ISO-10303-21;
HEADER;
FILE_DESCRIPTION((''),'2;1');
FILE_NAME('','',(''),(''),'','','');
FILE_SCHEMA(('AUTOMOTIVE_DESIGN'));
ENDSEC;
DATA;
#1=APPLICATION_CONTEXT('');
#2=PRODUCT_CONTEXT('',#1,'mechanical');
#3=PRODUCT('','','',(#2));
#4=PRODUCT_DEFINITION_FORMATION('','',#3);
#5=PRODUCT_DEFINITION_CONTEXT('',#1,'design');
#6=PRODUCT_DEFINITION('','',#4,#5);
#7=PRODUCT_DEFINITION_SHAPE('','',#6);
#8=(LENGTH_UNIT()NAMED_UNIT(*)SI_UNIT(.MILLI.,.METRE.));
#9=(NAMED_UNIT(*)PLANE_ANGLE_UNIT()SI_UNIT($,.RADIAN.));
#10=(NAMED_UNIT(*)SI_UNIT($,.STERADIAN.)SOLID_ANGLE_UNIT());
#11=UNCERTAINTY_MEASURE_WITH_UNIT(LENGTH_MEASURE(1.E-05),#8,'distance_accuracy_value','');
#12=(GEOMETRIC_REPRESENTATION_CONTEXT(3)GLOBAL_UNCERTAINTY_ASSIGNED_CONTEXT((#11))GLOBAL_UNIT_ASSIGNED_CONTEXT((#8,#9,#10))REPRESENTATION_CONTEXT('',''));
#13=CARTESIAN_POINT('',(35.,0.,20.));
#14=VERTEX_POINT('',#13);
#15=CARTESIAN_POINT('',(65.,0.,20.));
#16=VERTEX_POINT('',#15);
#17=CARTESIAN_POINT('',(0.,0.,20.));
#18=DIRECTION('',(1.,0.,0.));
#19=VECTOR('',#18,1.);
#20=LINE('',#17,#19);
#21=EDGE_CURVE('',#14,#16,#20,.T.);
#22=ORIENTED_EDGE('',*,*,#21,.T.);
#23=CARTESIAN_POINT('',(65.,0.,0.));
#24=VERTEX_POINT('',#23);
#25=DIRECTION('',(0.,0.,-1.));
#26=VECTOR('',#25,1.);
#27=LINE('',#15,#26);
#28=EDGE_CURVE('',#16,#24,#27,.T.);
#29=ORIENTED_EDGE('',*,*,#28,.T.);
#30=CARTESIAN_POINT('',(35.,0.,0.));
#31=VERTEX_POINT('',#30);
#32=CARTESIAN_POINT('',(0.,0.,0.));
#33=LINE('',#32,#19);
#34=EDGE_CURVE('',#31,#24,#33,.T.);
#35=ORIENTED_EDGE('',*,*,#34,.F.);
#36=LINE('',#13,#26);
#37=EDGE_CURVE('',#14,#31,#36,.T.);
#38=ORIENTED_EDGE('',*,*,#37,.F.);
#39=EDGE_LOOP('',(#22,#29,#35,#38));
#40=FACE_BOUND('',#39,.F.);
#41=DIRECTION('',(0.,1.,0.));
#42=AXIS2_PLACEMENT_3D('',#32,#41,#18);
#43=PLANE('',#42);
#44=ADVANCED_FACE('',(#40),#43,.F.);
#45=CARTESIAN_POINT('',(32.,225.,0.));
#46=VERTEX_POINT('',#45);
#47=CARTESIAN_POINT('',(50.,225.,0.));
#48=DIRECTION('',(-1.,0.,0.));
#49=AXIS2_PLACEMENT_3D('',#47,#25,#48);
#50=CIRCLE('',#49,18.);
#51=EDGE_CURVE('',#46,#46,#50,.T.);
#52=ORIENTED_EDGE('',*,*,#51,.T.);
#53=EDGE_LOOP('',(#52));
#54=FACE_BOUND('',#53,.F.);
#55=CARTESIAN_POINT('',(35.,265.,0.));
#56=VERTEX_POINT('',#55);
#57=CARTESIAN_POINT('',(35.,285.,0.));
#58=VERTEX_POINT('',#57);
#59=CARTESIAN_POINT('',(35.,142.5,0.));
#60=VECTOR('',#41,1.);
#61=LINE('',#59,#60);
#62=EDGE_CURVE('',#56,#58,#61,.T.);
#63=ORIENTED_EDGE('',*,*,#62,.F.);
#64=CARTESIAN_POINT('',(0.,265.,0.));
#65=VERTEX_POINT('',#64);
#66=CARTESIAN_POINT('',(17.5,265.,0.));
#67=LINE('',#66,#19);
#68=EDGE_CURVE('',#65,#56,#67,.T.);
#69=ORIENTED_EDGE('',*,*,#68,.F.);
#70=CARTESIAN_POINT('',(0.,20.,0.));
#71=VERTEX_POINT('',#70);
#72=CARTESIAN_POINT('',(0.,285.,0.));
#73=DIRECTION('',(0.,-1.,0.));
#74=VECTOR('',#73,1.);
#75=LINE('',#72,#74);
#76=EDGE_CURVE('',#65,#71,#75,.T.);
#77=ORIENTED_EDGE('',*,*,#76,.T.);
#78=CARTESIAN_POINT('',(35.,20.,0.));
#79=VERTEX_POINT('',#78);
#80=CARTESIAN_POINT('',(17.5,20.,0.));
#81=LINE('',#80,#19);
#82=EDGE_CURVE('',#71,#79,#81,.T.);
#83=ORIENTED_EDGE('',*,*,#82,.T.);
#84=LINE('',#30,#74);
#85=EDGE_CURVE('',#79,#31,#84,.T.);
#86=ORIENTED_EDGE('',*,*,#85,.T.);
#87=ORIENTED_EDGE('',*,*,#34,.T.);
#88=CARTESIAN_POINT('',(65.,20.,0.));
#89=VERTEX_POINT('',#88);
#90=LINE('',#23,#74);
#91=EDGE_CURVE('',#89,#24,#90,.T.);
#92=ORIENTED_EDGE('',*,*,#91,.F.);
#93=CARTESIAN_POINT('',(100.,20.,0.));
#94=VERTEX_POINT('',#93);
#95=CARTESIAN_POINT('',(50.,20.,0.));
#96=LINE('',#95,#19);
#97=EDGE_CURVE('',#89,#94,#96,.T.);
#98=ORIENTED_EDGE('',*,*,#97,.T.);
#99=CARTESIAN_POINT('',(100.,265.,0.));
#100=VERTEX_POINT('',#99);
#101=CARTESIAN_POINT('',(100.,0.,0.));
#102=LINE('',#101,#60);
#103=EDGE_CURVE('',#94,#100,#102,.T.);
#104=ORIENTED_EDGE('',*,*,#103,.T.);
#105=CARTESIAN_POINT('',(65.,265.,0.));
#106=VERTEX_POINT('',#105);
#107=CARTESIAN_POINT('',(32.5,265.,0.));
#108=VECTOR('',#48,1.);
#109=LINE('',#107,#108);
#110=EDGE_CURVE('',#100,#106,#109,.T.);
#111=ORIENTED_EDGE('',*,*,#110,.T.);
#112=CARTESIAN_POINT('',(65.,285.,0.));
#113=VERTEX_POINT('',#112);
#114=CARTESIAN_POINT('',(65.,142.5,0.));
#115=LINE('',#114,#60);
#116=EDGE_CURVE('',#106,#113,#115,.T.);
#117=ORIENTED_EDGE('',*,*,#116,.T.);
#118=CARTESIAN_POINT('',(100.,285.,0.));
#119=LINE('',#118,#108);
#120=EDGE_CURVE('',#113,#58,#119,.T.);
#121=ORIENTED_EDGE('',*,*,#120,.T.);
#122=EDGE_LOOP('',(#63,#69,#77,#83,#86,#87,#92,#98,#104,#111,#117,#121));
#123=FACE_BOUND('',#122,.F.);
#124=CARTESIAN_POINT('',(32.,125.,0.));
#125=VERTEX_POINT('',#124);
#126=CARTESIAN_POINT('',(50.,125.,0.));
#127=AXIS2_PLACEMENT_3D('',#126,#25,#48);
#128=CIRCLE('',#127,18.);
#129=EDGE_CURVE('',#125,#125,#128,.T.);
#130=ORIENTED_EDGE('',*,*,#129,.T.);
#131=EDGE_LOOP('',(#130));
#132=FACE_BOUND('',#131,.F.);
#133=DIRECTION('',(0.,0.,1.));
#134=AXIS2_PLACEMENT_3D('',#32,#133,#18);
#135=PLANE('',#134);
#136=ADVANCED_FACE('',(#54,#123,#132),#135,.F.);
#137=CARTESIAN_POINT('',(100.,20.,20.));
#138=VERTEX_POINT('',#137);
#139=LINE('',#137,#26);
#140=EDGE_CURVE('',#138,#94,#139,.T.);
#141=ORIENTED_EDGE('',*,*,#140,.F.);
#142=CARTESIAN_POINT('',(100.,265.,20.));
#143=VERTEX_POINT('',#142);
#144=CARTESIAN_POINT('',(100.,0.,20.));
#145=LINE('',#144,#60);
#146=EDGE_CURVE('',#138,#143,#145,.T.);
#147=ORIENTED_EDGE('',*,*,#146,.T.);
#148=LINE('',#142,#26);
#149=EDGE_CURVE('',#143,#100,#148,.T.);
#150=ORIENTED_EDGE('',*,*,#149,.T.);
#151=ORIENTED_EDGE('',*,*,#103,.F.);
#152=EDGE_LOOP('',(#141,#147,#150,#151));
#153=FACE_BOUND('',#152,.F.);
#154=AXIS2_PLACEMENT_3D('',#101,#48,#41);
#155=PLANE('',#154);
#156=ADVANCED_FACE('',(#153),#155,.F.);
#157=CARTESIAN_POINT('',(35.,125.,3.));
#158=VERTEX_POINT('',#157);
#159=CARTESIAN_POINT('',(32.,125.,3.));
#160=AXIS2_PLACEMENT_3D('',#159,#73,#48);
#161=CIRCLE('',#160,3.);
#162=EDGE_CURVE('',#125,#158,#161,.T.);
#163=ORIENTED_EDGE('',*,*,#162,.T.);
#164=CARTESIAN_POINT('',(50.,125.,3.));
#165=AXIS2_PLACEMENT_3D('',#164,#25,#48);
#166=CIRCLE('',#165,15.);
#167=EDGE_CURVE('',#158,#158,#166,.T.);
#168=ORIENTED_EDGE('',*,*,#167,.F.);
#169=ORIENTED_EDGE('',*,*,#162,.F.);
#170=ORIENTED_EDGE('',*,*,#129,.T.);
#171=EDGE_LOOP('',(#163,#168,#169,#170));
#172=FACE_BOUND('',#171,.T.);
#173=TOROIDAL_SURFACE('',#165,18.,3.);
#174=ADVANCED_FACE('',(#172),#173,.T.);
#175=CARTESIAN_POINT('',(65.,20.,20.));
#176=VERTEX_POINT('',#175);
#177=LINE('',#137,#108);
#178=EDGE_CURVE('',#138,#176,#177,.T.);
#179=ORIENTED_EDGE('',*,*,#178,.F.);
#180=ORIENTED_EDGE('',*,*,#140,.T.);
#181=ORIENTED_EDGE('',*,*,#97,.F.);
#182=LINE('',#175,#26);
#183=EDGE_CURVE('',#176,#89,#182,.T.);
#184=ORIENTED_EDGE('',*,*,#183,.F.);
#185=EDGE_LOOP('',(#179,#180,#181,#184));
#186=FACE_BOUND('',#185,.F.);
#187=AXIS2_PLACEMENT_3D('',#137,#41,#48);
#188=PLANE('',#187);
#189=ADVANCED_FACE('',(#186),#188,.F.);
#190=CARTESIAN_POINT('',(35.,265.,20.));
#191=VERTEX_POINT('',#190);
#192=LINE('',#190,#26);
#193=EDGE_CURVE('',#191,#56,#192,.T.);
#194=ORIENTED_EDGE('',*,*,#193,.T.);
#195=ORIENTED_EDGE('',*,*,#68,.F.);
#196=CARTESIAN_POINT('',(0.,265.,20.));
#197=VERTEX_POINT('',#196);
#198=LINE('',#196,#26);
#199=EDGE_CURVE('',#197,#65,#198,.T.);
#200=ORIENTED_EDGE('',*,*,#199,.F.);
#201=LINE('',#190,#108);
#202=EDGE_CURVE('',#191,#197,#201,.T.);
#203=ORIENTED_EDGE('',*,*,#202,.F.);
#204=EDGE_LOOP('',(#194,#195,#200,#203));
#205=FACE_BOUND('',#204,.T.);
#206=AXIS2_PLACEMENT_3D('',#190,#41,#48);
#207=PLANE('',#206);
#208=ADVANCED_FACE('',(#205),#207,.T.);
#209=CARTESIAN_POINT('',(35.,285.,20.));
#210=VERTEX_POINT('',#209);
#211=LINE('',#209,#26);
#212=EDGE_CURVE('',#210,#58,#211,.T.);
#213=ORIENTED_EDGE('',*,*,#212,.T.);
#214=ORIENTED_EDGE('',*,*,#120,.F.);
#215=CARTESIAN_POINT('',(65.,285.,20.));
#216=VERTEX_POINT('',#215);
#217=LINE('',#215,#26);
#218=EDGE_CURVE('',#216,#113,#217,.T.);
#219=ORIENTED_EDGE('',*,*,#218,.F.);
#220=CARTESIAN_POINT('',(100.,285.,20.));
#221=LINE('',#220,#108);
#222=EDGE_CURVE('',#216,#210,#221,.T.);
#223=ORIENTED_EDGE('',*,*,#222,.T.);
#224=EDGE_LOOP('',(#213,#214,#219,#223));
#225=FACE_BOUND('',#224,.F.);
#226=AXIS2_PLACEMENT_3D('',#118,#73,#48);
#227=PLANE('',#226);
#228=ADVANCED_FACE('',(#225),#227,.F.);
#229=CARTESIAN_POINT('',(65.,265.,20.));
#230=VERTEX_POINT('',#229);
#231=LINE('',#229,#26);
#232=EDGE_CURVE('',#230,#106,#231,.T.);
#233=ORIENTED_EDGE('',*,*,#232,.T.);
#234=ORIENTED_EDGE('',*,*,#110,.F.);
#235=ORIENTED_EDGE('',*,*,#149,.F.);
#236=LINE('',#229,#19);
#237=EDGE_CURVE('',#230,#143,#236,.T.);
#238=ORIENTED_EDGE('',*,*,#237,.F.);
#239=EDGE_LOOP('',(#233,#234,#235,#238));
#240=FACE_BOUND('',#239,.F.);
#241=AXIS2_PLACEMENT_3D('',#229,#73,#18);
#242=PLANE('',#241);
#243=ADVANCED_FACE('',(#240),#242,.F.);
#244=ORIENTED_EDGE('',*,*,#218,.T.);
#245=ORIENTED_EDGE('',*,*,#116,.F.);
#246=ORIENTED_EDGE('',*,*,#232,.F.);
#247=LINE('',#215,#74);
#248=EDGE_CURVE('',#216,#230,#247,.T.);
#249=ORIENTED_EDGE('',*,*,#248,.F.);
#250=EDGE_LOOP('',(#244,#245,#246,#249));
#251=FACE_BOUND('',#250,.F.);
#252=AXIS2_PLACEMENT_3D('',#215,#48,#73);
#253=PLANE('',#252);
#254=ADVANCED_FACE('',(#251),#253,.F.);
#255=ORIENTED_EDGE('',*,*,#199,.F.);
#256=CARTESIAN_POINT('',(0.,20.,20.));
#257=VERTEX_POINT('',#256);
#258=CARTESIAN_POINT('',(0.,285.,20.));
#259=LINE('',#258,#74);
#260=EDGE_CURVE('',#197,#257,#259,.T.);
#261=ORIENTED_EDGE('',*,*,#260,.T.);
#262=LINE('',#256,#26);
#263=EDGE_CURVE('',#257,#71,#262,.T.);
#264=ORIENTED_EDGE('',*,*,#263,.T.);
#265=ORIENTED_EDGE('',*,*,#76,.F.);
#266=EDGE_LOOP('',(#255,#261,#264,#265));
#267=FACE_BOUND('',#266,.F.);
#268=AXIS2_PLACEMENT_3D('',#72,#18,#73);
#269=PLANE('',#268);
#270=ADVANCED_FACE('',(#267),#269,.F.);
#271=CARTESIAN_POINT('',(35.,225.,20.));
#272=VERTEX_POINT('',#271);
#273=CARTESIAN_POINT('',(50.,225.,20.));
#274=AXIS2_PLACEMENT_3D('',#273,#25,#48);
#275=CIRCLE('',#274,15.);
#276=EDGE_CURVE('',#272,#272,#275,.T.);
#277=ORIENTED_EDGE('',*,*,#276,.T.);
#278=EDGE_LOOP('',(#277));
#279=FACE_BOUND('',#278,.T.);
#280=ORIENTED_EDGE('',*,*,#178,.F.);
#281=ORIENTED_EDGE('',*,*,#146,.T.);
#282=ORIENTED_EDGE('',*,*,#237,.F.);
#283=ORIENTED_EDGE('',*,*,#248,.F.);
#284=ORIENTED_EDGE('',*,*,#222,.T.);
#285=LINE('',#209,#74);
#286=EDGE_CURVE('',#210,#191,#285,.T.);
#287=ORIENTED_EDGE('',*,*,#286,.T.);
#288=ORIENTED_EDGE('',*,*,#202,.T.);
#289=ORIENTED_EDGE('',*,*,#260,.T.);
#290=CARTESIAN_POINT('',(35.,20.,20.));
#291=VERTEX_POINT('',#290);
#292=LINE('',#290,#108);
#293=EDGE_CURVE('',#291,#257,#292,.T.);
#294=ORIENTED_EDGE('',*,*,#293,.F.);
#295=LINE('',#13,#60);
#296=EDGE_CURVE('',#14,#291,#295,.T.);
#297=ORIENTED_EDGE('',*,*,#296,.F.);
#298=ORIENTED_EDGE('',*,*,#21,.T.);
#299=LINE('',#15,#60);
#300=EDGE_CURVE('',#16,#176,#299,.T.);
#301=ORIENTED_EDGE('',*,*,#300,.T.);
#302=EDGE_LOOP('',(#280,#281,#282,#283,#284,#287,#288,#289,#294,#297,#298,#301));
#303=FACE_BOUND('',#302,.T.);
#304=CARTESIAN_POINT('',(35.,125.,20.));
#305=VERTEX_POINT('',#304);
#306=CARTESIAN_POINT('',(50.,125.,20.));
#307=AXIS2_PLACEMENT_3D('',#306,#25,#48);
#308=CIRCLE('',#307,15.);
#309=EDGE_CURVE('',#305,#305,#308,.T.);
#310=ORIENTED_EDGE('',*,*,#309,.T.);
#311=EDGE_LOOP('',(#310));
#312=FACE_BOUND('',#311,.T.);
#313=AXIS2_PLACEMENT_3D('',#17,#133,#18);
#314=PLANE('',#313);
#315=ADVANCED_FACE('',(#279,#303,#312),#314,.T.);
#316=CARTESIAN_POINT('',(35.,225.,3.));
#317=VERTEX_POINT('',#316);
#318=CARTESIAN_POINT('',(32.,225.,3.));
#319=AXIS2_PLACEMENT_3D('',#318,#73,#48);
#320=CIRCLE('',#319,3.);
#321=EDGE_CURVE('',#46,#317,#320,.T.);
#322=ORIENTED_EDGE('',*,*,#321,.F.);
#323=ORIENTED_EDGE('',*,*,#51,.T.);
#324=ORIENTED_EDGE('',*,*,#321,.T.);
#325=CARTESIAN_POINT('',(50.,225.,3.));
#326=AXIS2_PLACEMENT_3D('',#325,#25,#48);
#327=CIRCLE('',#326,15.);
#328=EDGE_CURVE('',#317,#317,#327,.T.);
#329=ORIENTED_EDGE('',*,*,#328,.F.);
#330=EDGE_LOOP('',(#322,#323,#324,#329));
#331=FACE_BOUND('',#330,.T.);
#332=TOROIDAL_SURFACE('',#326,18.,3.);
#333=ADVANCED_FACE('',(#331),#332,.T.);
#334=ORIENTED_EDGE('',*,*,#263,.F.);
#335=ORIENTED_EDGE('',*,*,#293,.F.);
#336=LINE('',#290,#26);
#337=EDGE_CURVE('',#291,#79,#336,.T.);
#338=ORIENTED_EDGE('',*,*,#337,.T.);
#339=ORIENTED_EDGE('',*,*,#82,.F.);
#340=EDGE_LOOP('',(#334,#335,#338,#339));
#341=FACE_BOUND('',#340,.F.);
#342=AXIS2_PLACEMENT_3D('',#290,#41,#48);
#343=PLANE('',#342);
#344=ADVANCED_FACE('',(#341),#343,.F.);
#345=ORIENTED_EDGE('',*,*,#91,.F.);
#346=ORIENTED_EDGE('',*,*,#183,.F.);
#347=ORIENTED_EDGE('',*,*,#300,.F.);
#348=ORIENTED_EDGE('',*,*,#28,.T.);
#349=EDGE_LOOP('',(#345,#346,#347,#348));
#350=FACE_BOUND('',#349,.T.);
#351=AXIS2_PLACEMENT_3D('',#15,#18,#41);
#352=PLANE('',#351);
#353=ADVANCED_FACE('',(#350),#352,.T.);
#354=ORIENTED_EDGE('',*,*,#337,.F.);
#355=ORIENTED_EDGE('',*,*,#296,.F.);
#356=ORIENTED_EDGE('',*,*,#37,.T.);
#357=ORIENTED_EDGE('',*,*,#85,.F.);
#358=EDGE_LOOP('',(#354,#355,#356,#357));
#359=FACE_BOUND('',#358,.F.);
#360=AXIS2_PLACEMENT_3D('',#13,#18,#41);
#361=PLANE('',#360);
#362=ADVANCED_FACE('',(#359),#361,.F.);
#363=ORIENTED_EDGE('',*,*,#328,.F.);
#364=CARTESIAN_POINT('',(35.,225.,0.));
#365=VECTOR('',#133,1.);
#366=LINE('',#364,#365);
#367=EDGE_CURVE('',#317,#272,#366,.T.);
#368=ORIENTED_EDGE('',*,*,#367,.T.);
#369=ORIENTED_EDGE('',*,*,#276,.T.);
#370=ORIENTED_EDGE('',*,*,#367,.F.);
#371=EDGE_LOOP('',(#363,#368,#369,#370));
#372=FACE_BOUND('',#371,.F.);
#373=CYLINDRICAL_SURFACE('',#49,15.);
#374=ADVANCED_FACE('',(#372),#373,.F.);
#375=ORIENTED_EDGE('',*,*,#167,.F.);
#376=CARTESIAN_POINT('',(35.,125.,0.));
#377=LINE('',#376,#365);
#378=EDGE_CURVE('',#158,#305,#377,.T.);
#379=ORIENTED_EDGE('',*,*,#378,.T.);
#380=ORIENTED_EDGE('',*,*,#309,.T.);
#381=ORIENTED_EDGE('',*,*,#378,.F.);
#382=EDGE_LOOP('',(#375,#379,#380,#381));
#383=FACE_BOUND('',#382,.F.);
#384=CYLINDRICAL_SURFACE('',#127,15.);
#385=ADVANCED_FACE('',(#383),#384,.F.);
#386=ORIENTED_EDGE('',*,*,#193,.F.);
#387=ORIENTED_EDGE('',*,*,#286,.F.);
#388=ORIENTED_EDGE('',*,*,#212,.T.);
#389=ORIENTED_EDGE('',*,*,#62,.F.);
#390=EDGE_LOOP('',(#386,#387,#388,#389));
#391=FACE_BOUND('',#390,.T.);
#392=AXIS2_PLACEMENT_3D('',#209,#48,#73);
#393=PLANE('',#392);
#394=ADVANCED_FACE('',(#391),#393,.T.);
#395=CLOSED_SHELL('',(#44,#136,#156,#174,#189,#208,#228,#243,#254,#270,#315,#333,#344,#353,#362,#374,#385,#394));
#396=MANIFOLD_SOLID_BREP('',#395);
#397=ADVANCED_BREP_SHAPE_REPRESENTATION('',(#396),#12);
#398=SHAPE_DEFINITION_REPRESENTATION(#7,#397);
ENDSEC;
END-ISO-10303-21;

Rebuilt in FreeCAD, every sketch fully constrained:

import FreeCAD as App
import Part
import Sketcher


def edges_at(feature, points):
    """Names of the edges that pass closest to the given points."""
    edges = feature.Shape.Edges
    near = lambda p: min(range(len(edges)), key=lambda i: edges[i].distToShape(Part.Vertex(*p))[0])
    return sorted({f"Edge{near(p) + 1}" for p in points})


def add_polygon(sketch, points):
    """Adds a closed chain of lines whose ends are joined by coincident constraints."""
    first, n = sketch.GeometryCount, len(points)
    for a, b in zip(points, points[1:] + points[:1]):
        sketch.addGeometry(Part.LineSegment(App.Vector(*a, 0), App.Vector(*b, 0)), False)
    for i in range(n):
        sketch.addConstraint(Sketcher.Constraint("Coincident", first + i, 2, first + (i + 1) % n, 1))

doc = App.newDocument("Part")
body = doc.addObject("PartDesign::Body", "Body")

sketch1 = body.newObject("Sketcher::SketchObject", "Sketch")
sketch1.AttachmentSupport = (doc.getObject("XY_Plane"), [""])
sketch1.MapMode = "FlatFace"
add_polygon(sketch1, [(0, 285), (0, 0), (100, 0), (100, 285)])
sketch1.addConstraint([
    Sketcher.Constraint("Vertical", 0),
    Sketcher.Constraint("Horizontal", 1),
    Sketcher.Constraint("Vertical", 2),
    Sketcher.Constraint("Horizontal", 3),
    Sketcher.Constraint("Coincident", 0, 2, -1, 1),
    Sketcher.Constraint("DistanceX", 1, 1, 1, 2, 100.0),
    Sketcher.Constraint("DistanceY", 0, 2, 0, 1, 285.0),
])
pad1 = body.newObject("PartDesign::Pad", "Pad")
pad1.Profile = sketch1
pad1.Length = 20

sketch2 = body.newObject("Sketcher::SketchObject", "Sketch001")
sketch2.AttachmentSupport = (doc.getObject("XY_Plane"), [""])
sketch2.MapMode = "FlatFace"
sketch2.addGeometry([
    Part.Circle(App.Vector(50, 125, 0), App.Vector(0, 0, 1), 15),
    Part.Circle(App.Vector(50, 225, 0), App.Vector(0, 0, 1), 15),
], False)
sketch2.addConstraint([
    Sketcher.Constraint("Equal", 0, 1),
    Sketcher.Constraint("Vertical", 0, 3, 1, 3),
    Sketcher.Constraint("Diameter", 0, 30.0),
    Sketcher.Constraint("DistanceX", -1, 1, 0, 3, 50.0),
    Sketcher.Constraint("DistanceY", -1, 1, 0, 3, 125.0),
    Sketcher.Constraint("DistanceY", 0, 3, 1, 3, 100.0),
])
pocket1 = body.newObject("PartDesign::Pocket", "Pocket")
pocket1.Profile = sketch2
pocket1.Type = "UpToFirst"
pocket1.Reversed = True

sketch3 = body.newObject("Sketcher::SketchObject", "Sketch002")
sketch3.AttachmentSupport = (doc.getObject("XY_Plane"), [""])
sketch3.MapMode = "FlatFace"
sketch3.AttachmentOffset = App.Placement(App.Vector(0, 0, 20), App.Rotation())
add_polygon(sketch3, [(0, 20), (0, 0), (35, 0), (35, 20)])
add_polygon(sketch3, [(65, 20), (65, 0), (100, 0), (100, 20)])
add_polygon(sketch3, [(0, 285), (0, 265), (35, 265), (35, 285)])
add_polygon(sketch3, [(65, 265), (100, 265), (100, 285), (65, 285)])
sketch3.addConstraint([
    Sketcher.Constraint("Vertical", 0),
    Sketcher.Constraint("Horizontal", 1),
    Sketcher.Constraint("Vertical", 2),
    Sketcher.Constraint("Horizontal", 3),
    Sketcher.Constraint("Vertical", 4),
    Sketcher.Constraint("Horizontal", 5),
    Sketcher.Constraint("Vertical", 6),
    Sketcher.Constraint("Horizontal", 7),
    Sketcher.Constraint("Vertical", 8),
    Sketcher.Constraint("Horizontal", 9),
    Sketcher.Constraint("Vertical", 10),
    Sketcher.Constraint("Horizontal", 11),
    Sketcher.Constraint("Horizontal", 12),
    Sketcher.Constraint("Vertical", 13),
    Sketcher.Constraint("Horizontal", 14),
    Sketcher.Constraint("Vertical", 15),
    Sketcher.Constraint("Coincident", 0, 2, -1, 1),
    Sketcher.Constraint("PointOnObject", 4, 2, -1),
    Sketcher.Constraint("PointOnObject", 8, 2, -2),
    Sketcher.Constraint("Horizontal", 3, 2, 6, 2),
    Sketcher.Constraint("Horizontal", 9, 2, 12, 2),
    Sketcher.Constraint("Horizontal", 11, 2, 13, 2),
    Sketcher.Constraint("Vertical", 2, 2, 9, 2),
    Sketcher.Constraint("Vertical", 6, 2, 12, 2),
    Sketcher.Constraint("Vertical", 7, 2, 14, 2),
    Sketcher.Constraint("Equal", 3, 5),
    Sketcher.Constraint("Equal", 6, 8),
    Sketcher.Constraint("DistanceX", 1, 1, 1, 2, 35.0),
    Sketcher.Constraint("DistanceY", 0, 2, 0, 1, 20.0),
    Sketcher.Constraint("DistanceX", 1, 2, 4, 2, 30.0),
    Sketcher.Constraint("DistanceY", -1, 1, 8, 2, 265.0),
])
pocket2 = body.newObject("PartDesign::Pocket", "Pocket001")
pocket2.Profile = sketch3
pocket2.Type = "UpToFirst"
doc.recompute()

fillet = body.newObject("PartDesign::Fillet", "Fillet")
fillet.Base = (pocket2, edges_at(pocket2, [(65, 125, 0), (65, 225, 0)]))
fillet.Radius = 3

doc.recompute()
